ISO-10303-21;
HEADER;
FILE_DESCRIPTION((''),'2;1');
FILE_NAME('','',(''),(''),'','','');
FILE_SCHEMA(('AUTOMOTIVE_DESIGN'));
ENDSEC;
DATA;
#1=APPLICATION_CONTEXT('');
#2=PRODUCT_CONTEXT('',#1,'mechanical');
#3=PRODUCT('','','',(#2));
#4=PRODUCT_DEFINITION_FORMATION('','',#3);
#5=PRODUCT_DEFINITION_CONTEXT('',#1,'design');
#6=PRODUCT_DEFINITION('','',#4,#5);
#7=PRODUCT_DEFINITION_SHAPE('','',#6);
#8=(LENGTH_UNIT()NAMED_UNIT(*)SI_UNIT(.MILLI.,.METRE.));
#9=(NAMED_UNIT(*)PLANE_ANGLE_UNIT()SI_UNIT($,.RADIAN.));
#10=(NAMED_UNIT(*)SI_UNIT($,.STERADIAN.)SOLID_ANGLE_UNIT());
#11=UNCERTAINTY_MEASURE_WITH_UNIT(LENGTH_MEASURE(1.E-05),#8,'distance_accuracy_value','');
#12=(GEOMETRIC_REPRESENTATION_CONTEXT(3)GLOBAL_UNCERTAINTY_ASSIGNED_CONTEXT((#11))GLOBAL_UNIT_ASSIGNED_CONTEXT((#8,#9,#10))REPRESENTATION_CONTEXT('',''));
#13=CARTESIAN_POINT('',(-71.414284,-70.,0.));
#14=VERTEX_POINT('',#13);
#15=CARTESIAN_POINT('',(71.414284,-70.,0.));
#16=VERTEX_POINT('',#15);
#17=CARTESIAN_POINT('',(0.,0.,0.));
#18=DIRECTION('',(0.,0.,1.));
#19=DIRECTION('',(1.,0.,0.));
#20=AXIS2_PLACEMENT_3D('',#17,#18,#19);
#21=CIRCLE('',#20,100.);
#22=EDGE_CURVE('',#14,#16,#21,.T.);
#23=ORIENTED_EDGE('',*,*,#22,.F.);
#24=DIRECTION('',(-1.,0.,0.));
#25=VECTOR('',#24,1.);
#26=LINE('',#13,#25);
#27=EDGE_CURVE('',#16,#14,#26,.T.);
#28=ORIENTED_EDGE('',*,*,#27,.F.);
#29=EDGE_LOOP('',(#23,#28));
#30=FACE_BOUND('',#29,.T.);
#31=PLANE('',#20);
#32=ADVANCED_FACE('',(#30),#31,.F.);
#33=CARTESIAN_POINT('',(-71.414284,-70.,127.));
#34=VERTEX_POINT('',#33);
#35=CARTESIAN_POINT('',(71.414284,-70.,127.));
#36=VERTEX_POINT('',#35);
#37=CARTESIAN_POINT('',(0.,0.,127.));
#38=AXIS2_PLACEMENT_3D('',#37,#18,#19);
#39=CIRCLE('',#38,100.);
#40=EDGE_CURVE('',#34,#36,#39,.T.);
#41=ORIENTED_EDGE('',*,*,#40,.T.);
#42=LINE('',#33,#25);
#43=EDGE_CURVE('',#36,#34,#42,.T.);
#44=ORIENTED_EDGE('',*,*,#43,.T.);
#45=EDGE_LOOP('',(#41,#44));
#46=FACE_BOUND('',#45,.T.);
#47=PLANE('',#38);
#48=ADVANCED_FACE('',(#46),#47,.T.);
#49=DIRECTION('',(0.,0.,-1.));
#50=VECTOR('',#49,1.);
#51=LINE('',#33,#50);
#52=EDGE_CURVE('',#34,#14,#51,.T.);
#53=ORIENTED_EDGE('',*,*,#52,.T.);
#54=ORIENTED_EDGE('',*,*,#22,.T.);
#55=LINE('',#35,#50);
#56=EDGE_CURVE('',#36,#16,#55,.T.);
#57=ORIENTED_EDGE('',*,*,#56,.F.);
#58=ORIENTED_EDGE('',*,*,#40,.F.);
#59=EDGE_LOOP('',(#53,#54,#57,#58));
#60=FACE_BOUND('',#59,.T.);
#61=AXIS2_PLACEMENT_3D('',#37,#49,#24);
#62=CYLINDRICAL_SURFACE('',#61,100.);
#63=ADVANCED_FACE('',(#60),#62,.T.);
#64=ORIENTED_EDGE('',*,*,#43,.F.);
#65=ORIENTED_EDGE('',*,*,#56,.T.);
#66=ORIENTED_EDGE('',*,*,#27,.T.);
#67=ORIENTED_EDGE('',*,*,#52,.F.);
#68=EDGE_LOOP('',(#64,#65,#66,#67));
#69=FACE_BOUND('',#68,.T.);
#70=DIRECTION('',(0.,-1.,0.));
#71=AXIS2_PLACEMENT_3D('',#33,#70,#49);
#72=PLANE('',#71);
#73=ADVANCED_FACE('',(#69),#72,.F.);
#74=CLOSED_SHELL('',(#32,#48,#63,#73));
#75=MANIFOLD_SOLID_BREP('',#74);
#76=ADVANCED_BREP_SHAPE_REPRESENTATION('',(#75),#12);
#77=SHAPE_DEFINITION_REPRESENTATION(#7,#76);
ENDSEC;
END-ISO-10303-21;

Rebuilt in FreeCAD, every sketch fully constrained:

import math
import FreeCAD as App
import Part
import Sketcher

V = App.Vector
Q = App.Units.Quantity

doc = App.newDocument("Part")
params = doc.addObject("Spreadsheet::Sheet", "Params")
for row, (alias, value) in enumerate([
    ("sketch1_radius", "100 mm"),
    ("pad1_length", "127 mm"),
], start=1):
    params.set(f"A{row}", alias)
    params.set(f"B{row}", "=" + value)
    params.setAlias(f"B{row}", alias)

body = doc.addObject("PartDesign::Body", "Body")

# Sketch on XY plane
sketch1 = body.newObject("Sketcher::SketchObject", "Sketch")
sketch1.AttachmentSupport = (doc.getObject("XY_Plane"), [""])
sketch1.MapMode = "FlatFace"
sketch1.addGeometry([
    Part.LineSegment(V(71.414284, -70, 0), V(-71.414284, -70, 0)),
    Part.ArcOfCircle(Part.Circle(V(0, 0, 0), V(0, 0, 1), 100), math.radians(-135.572996), math.radians(-44.427004)),
], False)
sketch1.addConstraint([
    Sketcher.Constraint("Coincident", 0, 1, 1, 2),
    Sketcher.Constraint("Coincident", 1, 1, 0, 2),
    Sketcher.Constraint("Horizontal", 0),
    Sketcher.Constraint("Coincident", 1, 3, -1, 1),
    Sketcher.Constraint("Radius", 1, Q("100 mm")),
    Sketcher.Constraint("DistanceY", 0, 1, -1, 1, Q("70 mm")),
])
sketch1.setExpression("Constraints[4]", "Params.sketch1_radius")
pad1 = body.newObject("PartDesign::Pad", "Pad")
pad1.Profile = sketch1
pad1.setExpression("Length", "Params.pad1_length")

doc.recompute()
